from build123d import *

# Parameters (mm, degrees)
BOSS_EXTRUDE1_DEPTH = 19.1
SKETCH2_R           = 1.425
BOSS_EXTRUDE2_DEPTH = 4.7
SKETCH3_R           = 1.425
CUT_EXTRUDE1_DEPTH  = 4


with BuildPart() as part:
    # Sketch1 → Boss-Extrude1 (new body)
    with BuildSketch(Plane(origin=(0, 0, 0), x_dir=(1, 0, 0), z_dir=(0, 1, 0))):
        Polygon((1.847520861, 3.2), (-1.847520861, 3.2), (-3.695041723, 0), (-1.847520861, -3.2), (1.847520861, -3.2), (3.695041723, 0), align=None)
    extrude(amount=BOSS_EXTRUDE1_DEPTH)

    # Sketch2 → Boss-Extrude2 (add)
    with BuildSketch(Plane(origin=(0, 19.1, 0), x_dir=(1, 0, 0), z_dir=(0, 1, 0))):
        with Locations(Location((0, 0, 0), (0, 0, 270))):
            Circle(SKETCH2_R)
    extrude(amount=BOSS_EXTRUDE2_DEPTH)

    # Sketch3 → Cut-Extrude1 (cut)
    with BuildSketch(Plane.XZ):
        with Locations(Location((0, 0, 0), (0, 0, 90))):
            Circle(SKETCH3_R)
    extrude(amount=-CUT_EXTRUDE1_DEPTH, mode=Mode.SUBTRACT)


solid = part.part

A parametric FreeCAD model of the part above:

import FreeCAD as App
import Part
import Sketcher

V = App.Vector
Q = App.Units.Quantity


def add_polygon(sketch, points):
    """Adds a closed chain of lines whose ends are joined by coincident constraints."""
    first, n = sketch.GeometryCount, len(points)
    for a, b in zip(points, points[1:] + points[:1]):
        sketch.addGeometry(Part.LineSegment(App.Vector(*a, 0), App.Vector(*b, 0)), False)
    for i in range(n):
        sketch.addConstraint(Sketcher.Constraint("Coincident", first + i, 2, first + (i + 1) % n, 1))

doc = App.newDocument("Part")
params = doc.addObject("Spreadsheet::Sheet", "Params")
for row, (alias, value) in enumerate([
    ("pad1_length", "19.1 mm"),
    ("sketch2_diameter", "2.85 mm"),
    ("pad2_length", "4.7 mm"),
    ("sketch3_diameter", "2.85 mm"),
    ("pocket1_length", "4 mm"),
], start=1):
    params.set(f"A{row}", alias)
    params.set(f"B{row}", "=" + value)
    params.setAlias(f"B{row}", alias)

body = doc.addObject("PartDesign::Body", "Body")

# Sketch on XZ plane
sketch1 = body.newObject("Sketcher::SketchObject", "Sketch")
sketch1.AttachmentSupport = (doc.getObject("XZ_Plane"), [""])
sketch1.MapMode = "FlatFace"
add_polygon(sketch1, [(1.8, -3.2), (-1.8, -3.2), (-3.7, 0), (-1.8, 3.2), (1.8, 3.2), (3.7, 0)])  # lines 0-5
sketch1.addConstraint(Sketcher.Constraint("Horizontal", 0))
sketch1.addConstraint(Sketcher.Constraint("Horizontal", 3))
sketch1.addConstraint(Sketcher.Constraint("Symmetric", 0, 2, 3, 2, -1, 1))
sketch1.addConstraint(Sketcher.Constraint("Symmetric", 1, 2, 4, 2, -1, 1))
sketch1.addConstraint(Sketcher.Constraint("PointOnObject", 1, 2, -1))
sketch1.addConstraint(Sketcher.Constraint("Parallel", 2, 5))
sketch1.addConstraint(Sketcher.Constraint("Vertical", 0, 2, 2, 2))
sketch1.addConstraint(Sketcher.Constraint("Angle", 1, Q("120 deg")))
sketch1.addConstraint(Sketcher.Constraint("DistanceY", 0, 2, -1, 1, 3.2))
sketch1.addConstraint(Sketcher.Constraint("DistanceX", 0, 2, 0, 1, 3.695042))
pad1 = body.newObject("PartDesign::Pad", "Pad")
pad1.Profile = sketch1
pad1.setExpression("Length", "Params.pad1_length")
pad1.Reversed = True

# Sketch on XZ plane
sketch2 = body.newObject("Sketcher::SketchObject", "Sketch001")
sketch2.AttachmentSupport = (doc.getObject("XZ_Plane"), [""])
sketch2.MapMode = "FlatFace"
sketch2.AttachmentOffset = App.Placement(V(0, 0, -19.1), App.Rotation())
sketch2.addGeometry(Part.Circle(V(0, 0, 0), V(0, 0, 1), 1.4), False)
sketch2.addConstraint(Sketcher.Constraint("Coincident", 0, 3, -1, 1))
sketch2.addConstraint(Sketcher.Constraint("Diameter", 0, 2.85))
sketch2.setExpression("Constraints[1]", "Params.sketch2_diameter")
pad2 = body.newObject("PartDesign::Pad", "Pad001")
pad2.Profile = sketch2
pad2.setExpression("Length", "Params.pad2_length")
pad2.Reversed = True

# Sketch on XZ plane
sketch3 = body.newObject("Sketcher::SketchObject", "Sketch002")
sketch3.AttachmentSupport = (doc.getObject("XZ_Plane"), [""])
sketch3.MapMode = "FlatFace"
sketch3.addGeometry(Part.Circle(V(0, 0, 0), V(0, 0, 1), 1.4), False)
sketch3.addConstraint(Sketcher.Constraint("Coincident", 0, 3, -1, 1))
sketch3.addConstraint(Sketcher.Constraint("Diameter", 0, 2.85))
sketch3.setExpression("Constraints[1]", "Params.sketch3_diameter")
pocket1 = body.newObject("PartDesign::Pocket", "Pocket")
pocket1.Profile = sketch3
pocket1.setExpression("Length", "Params.pocket1_length")

doc.recompute()
